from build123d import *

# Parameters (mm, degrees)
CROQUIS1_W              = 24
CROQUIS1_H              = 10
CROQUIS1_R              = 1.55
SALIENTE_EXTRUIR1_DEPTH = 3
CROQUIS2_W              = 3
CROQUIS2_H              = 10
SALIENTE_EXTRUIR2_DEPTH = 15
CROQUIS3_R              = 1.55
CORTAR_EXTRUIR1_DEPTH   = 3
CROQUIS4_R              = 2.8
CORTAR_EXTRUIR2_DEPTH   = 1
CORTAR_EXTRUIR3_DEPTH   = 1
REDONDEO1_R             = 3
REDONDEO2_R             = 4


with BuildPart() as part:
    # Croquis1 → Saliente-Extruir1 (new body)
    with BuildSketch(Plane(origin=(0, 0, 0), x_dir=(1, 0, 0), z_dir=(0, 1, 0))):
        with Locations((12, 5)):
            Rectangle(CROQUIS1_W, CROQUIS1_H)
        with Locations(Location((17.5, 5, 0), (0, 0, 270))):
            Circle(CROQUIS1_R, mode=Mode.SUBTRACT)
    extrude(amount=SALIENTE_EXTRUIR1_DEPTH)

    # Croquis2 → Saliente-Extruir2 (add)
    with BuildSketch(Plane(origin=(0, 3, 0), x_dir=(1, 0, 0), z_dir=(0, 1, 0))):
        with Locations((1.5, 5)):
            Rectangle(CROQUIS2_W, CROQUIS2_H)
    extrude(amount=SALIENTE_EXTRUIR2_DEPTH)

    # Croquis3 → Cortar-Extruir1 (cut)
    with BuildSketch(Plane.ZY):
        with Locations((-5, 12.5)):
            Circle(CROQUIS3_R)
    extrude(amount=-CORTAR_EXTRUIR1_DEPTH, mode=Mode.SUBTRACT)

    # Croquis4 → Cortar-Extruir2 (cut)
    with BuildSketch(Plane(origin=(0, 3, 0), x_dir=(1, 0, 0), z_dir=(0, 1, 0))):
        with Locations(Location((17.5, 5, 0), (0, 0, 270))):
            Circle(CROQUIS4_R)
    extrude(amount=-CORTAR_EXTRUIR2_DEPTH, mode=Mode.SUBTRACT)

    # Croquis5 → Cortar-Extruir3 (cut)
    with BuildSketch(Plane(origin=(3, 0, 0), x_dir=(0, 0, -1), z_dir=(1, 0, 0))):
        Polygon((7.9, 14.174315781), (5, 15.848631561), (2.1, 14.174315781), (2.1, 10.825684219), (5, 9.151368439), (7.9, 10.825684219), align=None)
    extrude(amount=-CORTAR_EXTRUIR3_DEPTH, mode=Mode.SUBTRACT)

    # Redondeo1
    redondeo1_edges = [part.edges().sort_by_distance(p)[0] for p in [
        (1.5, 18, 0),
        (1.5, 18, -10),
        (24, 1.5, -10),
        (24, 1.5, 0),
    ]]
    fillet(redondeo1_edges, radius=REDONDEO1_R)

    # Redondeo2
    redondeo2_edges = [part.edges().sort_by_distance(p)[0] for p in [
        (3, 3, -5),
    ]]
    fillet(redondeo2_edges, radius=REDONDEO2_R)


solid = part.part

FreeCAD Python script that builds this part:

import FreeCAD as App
import Part
import Sketcher

V = App.Vector
Q = App.Units.Quantity


def edges_at(feature, points):
    """Names of the edges that pass closest to the given points."""
    edges = feature.Shape.Edges
    near = lambda p: min(range(len(edges)), key=lambda i: edges[i].distToShape(Part.Vertex(*p))[0])
    return sorted({f"Edge{near(p) + 1}" for p in points})


def add_polygon(sketch, points):
    """Adds a closed chain of lines whose ends are joined by coincident constraints."""
    first, n = sketch.GeometryCount, len(points)
    for a, b in zip(points, points[1:] + points[:1]):
        sketch.addGeometry(Part.LineSegment(App.Vector(*a, 0), App.Vector(*b, 0)), False)
    for i in range(n):
        sketch.addConstraint(Sketcher.Constraint("Coincident", first + i, 2, first + (i + 1) % n, 1))

doc = App.newDocument("Part")
params = doc.addObject("Spreadsheet::Sheet", "Params")
for row, (alias, value) in enumerate([
    ("sketch1_diameter", "3.1 mm"),
    ("sketch1_width", "24 mm"),
    ("sketch1_height", "10 mm"),
    ("pad1_length", "3 mm"),
    ("sketch2_width", "3 mm"),
    ("sketch2_height", "10 mm"),
    ("pad2_length", "15 mm"),
    ("sketch3_diameter", "3.1 mm"),
    ("pocket1_length", "3 mm"),
    ("sketch4_diameter", "5.6 mm"),
    ("pocket2_length", "1 mm"),
    ("pocket3_length", "1 mm"),
    ("fillet_radius", "3 mm"),
    ("fillet2_radius", "4 mm"),
], start=1):
    params.set(f"A{row}", alias)
    params.set(f"B{row}", "=" + value)
    params.setAlias(f"B{row}", alias)

body = doc.addObject("PartDesign::Body", "Body")

# Sketch on XZ plane
sketch1 = body.newObject("Sketcher::SketchObject", "Sketch")
sketch1.AttachmentSupport = (doc.getObject("XZ_Plane"), [""])
sketch1.MapMode = "FlatFace"
add_polygon(sketch1, [(0, -10), (0, 0), (24, 0), (24, -10)])  # lines 0-3
sketch1.addGeometry(Part.Circle(V(17.5, -5, 0), V(0, 0, 1), 1.6), False)  # 4
sketch1.addConstraint(Sketcher.Constraint("Vertical", 0))
sketch1.addConstraint(Sketcher.Constraint("Horizontal", 1))
sketch1.addConstraint(Sketcher.Constraint("Vertical", 2))
sketch1.addConstraint(Sketcher.Constraint("Horizontal", 3))
sketch1.addConstraint(Sketcher.Constraint("Coincident", 0, 2, -1, 1))
sketch1.addConstraint(Sketcher.Constraint("Diameter", 4, Q("3.1 mm")))
sketch1.addConstraint(Sketcher.Constraint("DistanceX", 1, 1, 1, 2, Q("24 mm")))
sketch1.addConstraint(Sketcher.Constraint("DistanceY", 0, 1, 0, 2, Q("10 mm")))
sketch1.addConstraint(Sketcher.Constraint("DistanceY", 4, 3, -1, 1, Q("5 mm")))
sketch1.addConstraint(Sketcher.Constraint("DistanceX", -1, 1, 4, 3, Q("17.5 mm")))
sketch1.setExpression("Constraints[9]", "Params.sketch1_diameter")
sketch1.setExpression("Constraints[10]", "Params.sketch1_width")
sketch1.setExpression("Constraints[11]", "Params.sketch1_height")
pad1 = body.newObject("PartDesign::Pad", "Pad")
pad1.Profile = sketch1
pad1.setExpression("Length", "Params.pad1_length")
pad1.Reversed = True

# Sketch on XZ plane
sketch2 = body.newObject("Sketcher::SketchObject", "Sketch001")
sketch2.AttachmentSupport = (doc.getObject("XZ_Plane"), [""])
sketch2.MapMode = "FlatFace"
sketch2.AttachmentOffset = App.Placement(V(0, 0, -3), App.Rotation())
add_polygon(sketch2, [(0, -10), (0, 0), (3, 0), (3, -10)])  # lines 0-3
sketch2.addConstraint(Sketcher.Constraint("Vertical", 0))
sketch2.addConstraint(Sketcher.Constraint("Horizontal", 1))
sketch2.addConstraint(Sketcher.Constraint("Vertical", 2))
sketch2.addConstraint(Sketcher.Constraint("Horizontal", 3))
sketch2.addConstraint(Sketcher.Constraint("Coincident", 0, 2, -1, 1))
sketch2.addConstraint(Sketcher.Constraint("DistanceX", 1, 1, 1, 2, Q("3 mm")))
sketch2.addConstraint(Sketcher.Constraint("DistanceY", 0, 1, 0, 2, Q("10 mm")))
sketch2.setExpression("Constraints[9]", "Params.sketch2_width")
sketch2.setExpression("Constraints[10]", "Params.sketch2_height")
pad2 = body.newObject("PartDesign::Pad", "Pad001")
pad2.Profile = sketch2
pad2.setExpression("Length", "Params.pad2_length")
pad2.Reversed = True

# Sketch on YZ plane
sketch3 = body.newObject("Sketcher::SketchObject", "Sketch002")
sketch3.AttachmentSupport = (doc.getObject("YZ_Plane"), [""])
sketch3.MapMode = "FlatFace"
sketch3.addGeometry(Part.Circle(V(12.5, -5, 0), V(0, 0, 1), 1.6), False)
sketch3.addConstraint(Sketcher.Constraint("Diameter", 0, Q("3.1 mm")))
sketch3.addConstraint(Sketcher.Constraint("DistanceY", 0, 3, -1, 1, Q("5 mm")))
sketch3.addConstraint(Sketcher.Constraint("DistanceX", -1, 1, 0, 3, Q("12.5 mm")))
sketch3.setExpression("Constraints[0]", "Params.sketch3_diameter")
pocket1 = body.newObject("PartDesign::Pocket", "Pocket")
pocket1.Profile = sketch3
pocket1.setExpression("Length", "Params.pocket1_length")
pocket1.Reversed = True

# Sketch on XZ plane
sketch4 = body.newObject("Sketcher::SketchObject", "Sketch003")
sketch4.AttachmentSupport = (doc.getObject("XZ_Plane"), [""])
sketch4.MapMode = "FlatFace"
sketch4.AttachmentOffset = App.Placement(V(0, 0, -3), App.Rotation())
sketch4.addGeometry(Part.Circle(V(17.5, -5, 0), V(0, 0, 1), 2.8), False)
sketch4.addConstraint(Sketcher.Constraint("Diameter", 0, Q("5.6 mm")))
sketch4.addConstraint(Sketcher.Constraint("DistanceY", 0, 3, -1, 1, Q("5 mm")))
sketch4.addConstraint(Sketcher.Constraint("DistanceX", -1, 1, 0, 3, Q("17.5 mm")))
sketch4.setExpression("Constraints[0]", "Params.sketch4_diameter")
pocket2 = body.newObject("PartDesign::Pocket", "Pocket001")
pocket2.Profile = sketch4
pocket2.setExpression("Length", "Params.pocket2_length")
pocket2.Reversed = True

# Sketch on YZ plane
sketch5 = body.newObject("Sketcher::SketchObject", "Sketch004")
sketch5.AttachmentSupport = (doc.getObject("YZ_Plane"), [""])
sketch5.MapMode = "FlatFace"
sketch5.AttachmentOffset = App.Placement(V(0, 0, 3), App.Rotation())
add_polygon(sketch5, [(14.2, -7.9), (15.8, -5), (14.2, -2.1), (10.8, -2.1), (9.2, -5), (10.8, -7.9)])  # lines 0-5
sketch5.addConstraint(Sketcher.Constraint("Horizontal", 2))
sketch5.addConstraint(Sketcher.Constraint("Horizontal", 5))
sketch5.addConstraint(Sketcher.Constraint("Parallel", 0, 3))
sketch5.addConstraint(Sketcher.Constraint("Parallel", 1, 4))
sketch5.addConstraint(Sketcher.Constraint("Horizontal", 0, 2, 3, 2))
sketch5.addConstraint(Sketcher.Constraint("Vertical", 2, 2, 4, 2))
sketch5.addConstraint(Sketcher.Constraint("Vertical", 1, 2, 5, 2))
sketch5.addConstraint(Sketcher.Constraint("Angle", 0, Q("60 deg")))
sketch5.addConstraint(Sketcher.Constraint("DistanceY", 0, 2, -1, 1, Q("5 mm")))
sketch5.addConstraint(Sketcher.Constraint("DistanceY", 1, 2, -1, 1, Q("2.1 mm")))
sketch5.addConstraint(Sketcher.Constraint("DistanceX", 2, 2, 2, 1, Q("3.348632 mm")))
sketch5.addConstraint(Sketcher.Constraint("DistanceX", -1, 1, 0, 2, Q("15.848632 mm")))
pocket3 = body.newObject("PartDesign::Pocket", "Pocket002")
pocket3.Profile = sketch5
pocket3.setExpression("Length", "Params.pocket3_length")
doc.recompute()

fillet = body.newObject("PartDesign::Fillet", "Fillet")
fillet.Base = (pocket3, edges_at(pocket3, [
    (1.5, 18, 0),
    (1.5, 18, -10),
    (24, 1.5, -10),
    (24, 1.5, 0),
]))
fillet.setExpression("Radius", "Params.fillet_radius")
doc.recompute()

fillet2 = body.newObject("PartDesign::Fillet", "Fillet001")
fillet2.Base = (fillet, edges_at(fillet, [(3, 3, -5)]))
fillet2.setExpression("Radius", "Params.fillet2_radius")

doc.recompute()
